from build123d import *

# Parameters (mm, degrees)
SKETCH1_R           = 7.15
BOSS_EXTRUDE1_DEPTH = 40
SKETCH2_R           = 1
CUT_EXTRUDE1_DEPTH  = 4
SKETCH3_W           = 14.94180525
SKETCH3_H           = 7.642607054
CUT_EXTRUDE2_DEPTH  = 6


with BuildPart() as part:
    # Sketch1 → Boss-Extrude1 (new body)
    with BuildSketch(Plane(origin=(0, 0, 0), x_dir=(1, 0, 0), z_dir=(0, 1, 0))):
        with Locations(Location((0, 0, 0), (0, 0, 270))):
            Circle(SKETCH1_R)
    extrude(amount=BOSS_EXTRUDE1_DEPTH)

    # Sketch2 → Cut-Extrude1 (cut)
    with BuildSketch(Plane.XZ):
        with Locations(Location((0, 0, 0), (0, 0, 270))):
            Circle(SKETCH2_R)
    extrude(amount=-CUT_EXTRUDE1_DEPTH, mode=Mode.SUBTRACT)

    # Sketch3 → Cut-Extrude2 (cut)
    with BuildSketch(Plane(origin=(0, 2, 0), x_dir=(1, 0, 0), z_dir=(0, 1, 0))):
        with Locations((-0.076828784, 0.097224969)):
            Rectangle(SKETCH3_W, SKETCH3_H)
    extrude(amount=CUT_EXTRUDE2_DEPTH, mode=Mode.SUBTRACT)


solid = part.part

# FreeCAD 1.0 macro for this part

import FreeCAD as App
import Part
import Sketcher
Q = App.Units.Quantity

doc = App.newDocument("Part")
body = doc.addObject("PartDesign::Body", "Body")

# Sketch on XZ plane
sketch1 = doc.addObject("Sketcher::SketchObject", "Sketch")
body.addObject(sketch1)
sketch1.AttachmentSupport = (doc.XZ_Plane, [""])
sketch1.MapMode = "FlatFace"
sketch1.addGeometry(Part.Circle(App.Vector(0, 0, 0), App.Vector(0, 0, 1), 7), False)
sketch1.addConstraint([
    Sketcher.Constraint("Coincident", 0, 3, -1, 1),
    Sketcher.Constraint("Diameter", 0, Q("14.3 mm")),
])
pad1 = doc.addObject("PartDesign::Pad", "Pad")
body.addObject(pad1)
pad1.Profile = sketch1
pad1.Length = 40
pad1.Reversed = True

# Sketch on XZ plane
sketch2 = doc.addObject("Sketcher::SketchObject", "Sketch001")
body.addObject(sketch2)
sketch2.AttachmentSupport = (doc.XZ_Plane, [""])
sketch2.MapMode = "FlatFace"
sketch2.addGeometry(Part.Circle(App.Vector(0, 0, 0), App.Vector(0, 0, 1), 1), False)
sketch2.addConstraint([
    Sketcher.Constraint("Coincident", 0, 3, -1, 1),
    Sketcher.Constraint("Diameter", 0, Q("2 mm")),
])
pocket1 = doc.addObject("PartDesign::Pocket", "Pocket")
body.addObject(pocket1)
pocket1.Profile = sketch2
pocket1.Length = 4

# Sketch on XZ plane
sketch3 = doc.addObject("Sketcher::SketchObject", "Sketch002")
body.addObject(sketch3)
sketch3.AttachmentSupport = (doc.XZ_Plane, [""])
sketch3.MapMode = "FlatFace"
sketch3.AttachmentOffset = App.Placement(App.Vector(0, 0, -2), App.Rotation())
sketch3.addGeometry([
    Part.LineSegment(App.Vector(-8, -4, 0), App.Vector(-8, 4, 0)),
    Part.LineSegment(App.Vector(-8, 4, 0), App.Vector(7, 4, 0)),
    Part.LineSegment(App.Vector(7, 4, 0), App.Vector(7, -4, 0)),
    Part.LineSegment(App.Vector(7, -4, 0), App.Vector(-8, -4, 0)),
], False)
sketch3.addConstraint([
    Sketcher.Constraint("Coincident", 0, 2, 1, 1),
    Sketcher.Constraint("Coincident", 1, 2, 2, 1),
    Sketcher.Constraint("Coincident", 2, 2, 3, 1),
    Sketcher.Constraint("Coincident", 3, 2, 0, 1),
    Sketcher.Constraint("Vertical", 0),
    Sketcher.Constraint("Horizontal", 1),
    Sketcher.Constraint("Vertical", 2),
    Sketcher.Constraint("Horizontal", 3),
    Sketcher.Constraint("DistanceX", 1, 1, 1, 2, Q("14.941805 mm")),
    Sketcher.Constraint("DistanceY", 0, 1, 0, 2, Q("7.642607 mm")),
    Sketcher.Constraint("DistanceX", 0, 2, -1, 1, Q("7.547731 mm")),
    Sketcher.Constraint("DistanceY", -1, 1, 0, 2, Q("3.724079 mm")),
])
pocket2 = doc.addObject("PartDesign::Pocket", "Pocket001")
body.addObject(pocket2)
pocket2.Profile = sketch3
pocket2.Length = 6

doc.recompute()
